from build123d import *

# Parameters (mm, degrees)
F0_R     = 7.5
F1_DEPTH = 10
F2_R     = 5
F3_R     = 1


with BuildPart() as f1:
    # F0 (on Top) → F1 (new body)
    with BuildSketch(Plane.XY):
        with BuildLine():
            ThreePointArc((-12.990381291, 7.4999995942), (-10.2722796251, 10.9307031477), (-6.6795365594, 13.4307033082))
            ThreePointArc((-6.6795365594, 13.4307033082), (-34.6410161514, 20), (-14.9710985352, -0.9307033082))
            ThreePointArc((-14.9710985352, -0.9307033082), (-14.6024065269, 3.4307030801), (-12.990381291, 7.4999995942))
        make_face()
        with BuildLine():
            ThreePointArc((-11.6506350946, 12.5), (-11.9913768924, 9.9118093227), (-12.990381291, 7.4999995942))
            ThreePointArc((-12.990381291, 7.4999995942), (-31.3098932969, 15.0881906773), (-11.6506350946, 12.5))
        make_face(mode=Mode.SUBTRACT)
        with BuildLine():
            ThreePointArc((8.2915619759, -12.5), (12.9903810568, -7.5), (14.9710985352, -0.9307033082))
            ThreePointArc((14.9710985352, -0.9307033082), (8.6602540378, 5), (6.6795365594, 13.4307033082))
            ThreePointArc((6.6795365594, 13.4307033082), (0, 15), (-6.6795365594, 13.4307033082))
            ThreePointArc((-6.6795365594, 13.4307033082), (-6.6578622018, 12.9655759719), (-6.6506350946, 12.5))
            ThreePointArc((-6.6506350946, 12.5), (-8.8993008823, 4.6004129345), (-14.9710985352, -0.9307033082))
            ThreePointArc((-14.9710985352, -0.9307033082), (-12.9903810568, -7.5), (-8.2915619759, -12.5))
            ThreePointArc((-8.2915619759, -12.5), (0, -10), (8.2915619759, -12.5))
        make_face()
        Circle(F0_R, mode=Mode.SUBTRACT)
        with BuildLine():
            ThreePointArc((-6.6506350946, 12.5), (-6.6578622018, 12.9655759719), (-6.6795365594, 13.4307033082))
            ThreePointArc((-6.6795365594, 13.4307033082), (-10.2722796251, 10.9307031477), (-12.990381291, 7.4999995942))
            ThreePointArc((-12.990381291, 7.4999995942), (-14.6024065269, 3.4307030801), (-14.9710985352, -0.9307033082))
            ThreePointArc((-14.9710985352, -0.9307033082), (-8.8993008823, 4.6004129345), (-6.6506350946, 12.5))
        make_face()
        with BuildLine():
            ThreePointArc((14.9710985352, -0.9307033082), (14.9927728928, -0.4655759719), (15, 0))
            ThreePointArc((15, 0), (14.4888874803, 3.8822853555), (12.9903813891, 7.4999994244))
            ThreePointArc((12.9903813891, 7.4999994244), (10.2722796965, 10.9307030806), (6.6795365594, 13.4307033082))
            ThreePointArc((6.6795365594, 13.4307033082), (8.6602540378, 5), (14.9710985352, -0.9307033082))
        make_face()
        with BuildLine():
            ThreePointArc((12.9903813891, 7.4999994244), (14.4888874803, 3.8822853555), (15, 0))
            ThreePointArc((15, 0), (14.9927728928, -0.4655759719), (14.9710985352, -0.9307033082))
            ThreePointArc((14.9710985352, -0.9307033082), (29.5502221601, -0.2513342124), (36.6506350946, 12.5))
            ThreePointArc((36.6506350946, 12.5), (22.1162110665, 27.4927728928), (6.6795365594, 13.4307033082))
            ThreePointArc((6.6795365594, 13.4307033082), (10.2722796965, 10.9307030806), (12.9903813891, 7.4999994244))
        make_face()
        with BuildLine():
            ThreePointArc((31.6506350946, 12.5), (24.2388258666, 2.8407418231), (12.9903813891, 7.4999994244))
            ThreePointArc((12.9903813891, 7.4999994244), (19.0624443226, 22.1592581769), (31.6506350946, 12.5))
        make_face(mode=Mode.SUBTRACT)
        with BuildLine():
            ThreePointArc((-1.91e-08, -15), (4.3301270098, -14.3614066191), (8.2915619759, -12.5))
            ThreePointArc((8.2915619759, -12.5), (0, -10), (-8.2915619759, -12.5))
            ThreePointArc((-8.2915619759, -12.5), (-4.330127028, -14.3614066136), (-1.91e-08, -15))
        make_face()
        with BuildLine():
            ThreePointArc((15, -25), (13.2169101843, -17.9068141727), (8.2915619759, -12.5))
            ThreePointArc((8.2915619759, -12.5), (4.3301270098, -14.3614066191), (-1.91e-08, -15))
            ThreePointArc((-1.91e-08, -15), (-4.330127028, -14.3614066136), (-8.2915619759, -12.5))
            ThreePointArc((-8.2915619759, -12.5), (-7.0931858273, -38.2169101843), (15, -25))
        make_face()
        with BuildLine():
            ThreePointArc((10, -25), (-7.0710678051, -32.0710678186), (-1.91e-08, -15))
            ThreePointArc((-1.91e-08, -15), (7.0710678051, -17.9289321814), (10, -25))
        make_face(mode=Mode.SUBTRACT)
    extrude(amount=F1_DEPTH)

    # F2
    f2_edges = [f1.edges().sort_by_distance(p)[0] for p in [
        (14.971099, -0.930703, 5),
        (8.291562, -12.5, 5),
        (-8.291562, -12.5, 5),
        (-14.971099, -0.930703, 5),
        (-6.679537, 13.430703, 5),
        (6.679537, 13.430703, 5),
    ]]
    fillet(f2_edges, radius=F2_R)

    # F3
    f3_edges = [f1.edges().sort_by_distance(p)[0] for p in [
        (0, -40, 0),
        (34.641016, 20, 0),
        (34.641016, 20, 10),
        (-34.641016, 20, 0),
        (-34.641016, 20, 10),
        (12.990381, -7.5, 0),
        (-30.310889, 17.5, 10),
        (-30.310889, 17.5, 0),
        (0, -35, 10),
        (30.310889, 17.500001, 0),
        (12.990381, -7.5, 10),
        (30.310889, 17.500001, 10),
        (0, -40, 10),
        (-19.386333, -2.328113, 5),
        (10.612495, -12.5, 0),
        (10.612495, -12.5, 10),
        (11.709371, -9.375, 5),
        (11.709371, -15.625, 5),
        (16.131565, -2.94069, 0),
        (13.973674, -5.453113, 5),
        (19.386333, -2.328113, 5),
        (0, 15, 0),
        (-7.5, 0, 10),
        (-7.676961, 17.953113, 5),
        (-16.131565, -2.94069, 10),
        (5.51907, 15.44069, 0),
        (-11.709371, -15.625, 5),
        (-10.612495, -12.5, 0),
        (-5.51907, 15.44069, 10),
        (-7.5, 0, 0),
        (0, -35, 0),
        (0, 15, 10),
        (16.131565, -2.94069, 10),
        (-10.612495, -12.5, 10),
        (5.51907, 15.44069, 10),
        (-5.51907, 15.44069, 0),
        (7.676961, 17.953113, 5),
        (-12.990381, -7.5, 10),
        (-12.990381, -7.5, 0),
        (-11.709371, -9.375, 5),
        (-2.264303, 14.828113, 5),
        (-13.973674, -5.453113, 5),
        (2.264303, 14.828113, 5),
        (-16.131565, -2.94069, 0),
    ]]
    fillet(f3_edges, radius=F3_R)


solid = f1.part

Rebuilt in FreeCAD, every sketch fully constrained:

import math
import FreeCAD as App
import Part
import Sketcher
from FreeCAD import Vector


def edges_at(feature, points):
    """Names of the edges that pass closest to the given points."""
    edges = feature.Shape.Edges
    near = lambda p: min(range(len(edges)), key=lambda i: edges[i].distToShape(Part.Vertex(*p))[0])
    return sorted({f"Edge{near(p) + 1}" for p in points})

doc = App.newDocument("Part")
body = doc.addObject("PartDesign::Body", "Body")

# Sketch on XY plane
sketch1 = body.newObject("Sketcher::SketchObject", "Sketch")
sketch1.AttachmentSupport = (doc.getObject("XY_Plane"), [""])
sketch1.MapMode = "FlatFace"
sketch1.addGeometry([
    Part.ArcOfCircle(Part.Circle(Vector(-21.650635, 12.5, 0), Vector(0, 0, 1), 15), math.radians(3.55731), math.radians(296.44269)),  # 0
    Part.ArcOfCircle(Part.Circle(Vector(0, 0, 0), Vector(0, 0, 1), 15), math.radians(-176.44269), math.radians(-123.55731)),  # 1
    Part.ArcOfCircle(Part.Circle(Vector(0, -25, 0), Vector(0, 0, 1), 15), math.radians(123.55731), math.radians(360)),  # 2
    Part.ArcOfCircle(Part.Circle(Vector(0, -25, 0), Vector(0, 0, 1), 15), math.radians(0), math.radians(56.44269)),  # 3
    Part.ArcOfCircle(Part.Circle(Vector(0, 0, 0), Vector(0, 0, 1), 15), math.radians(-56.44269), math.radians(-3.55731)),  # 4
    Part.ArcOfCircle(Part.Circle(Vector(21.650635, 12.5, 0), Vector(0, 0, 1), 15), math.radians(-116.44269), math.radians(0)),  # 5
    Part.ArcOfCircle(Part.Circle(Vector(21.650635, 12.5, 0), Vector(0, 0, 1), 15), math.radians(0), math.radians(176.44269)),  # 6
    Part.ArcOfCircle(Part.Circle(Vector(0, 0, 0), Vector(0, 0, 1), 15), math.radians(63.55731), math.radians(116.44269)),  # 7
    Part.ArcOfCircle(Part.Circle(Vector(0, -25, 0), Vector(0, 0, 1), 10), math.radians(0), math.radians(90)),  # 8
    Part.ArcOfCircle(Part.Circle(Vector(0, -25, 0), Vector(0, 0, 1), 10), math.radians(90), math.radians(360)),  # 9
    Part.ArcOfCircle(Part.Circle(Vector(-21.650635, 12.5, 0), Vector(0, 0, 1), 10), math.radians(-30.000003), math.radians(0)),  # 10
    Part.ArcOfCircle(Part.Circle(Vector(-21.650635, 12.5, 0), Vector(0, 0, 1), 10), math.radians(0), math.radians(329.999997)),  # 11
    Part.Circle(Vector(0, 0, 0), Vector(0, 0, 1), 7.5),  # 12
    Part.ArcOfCircle(Part.Circle(Vector(21.650635, 12.5, 0), Vector(0, 0, 1), 10), math.radians(0), math.radians(210.000004)),  # 13
    Part.ArcOfCircle(Part.Circle(Vector(21.650635, 12.5, 0), Vector(0, 0, 1), 10), math.radians(-149.999996), math.radians(0)),  # 14
], False)
sketch1.addConstraint([
    Sketcher.Constraint("Coincident", 0, 2, 1, 1),
    Sketcher.Constraint("Coincident", 1, 2, 2, 1),
    Sketcher.Constraint("Tangent", 2, 2, 3, 1),
    Sketcher.Constraint("Coincident", 3, 2, 4, 1),
    Sketcher.Constraint("Coincident", 4, 2, 5, 1),
    Sketcher.Constraint("Tangent", 5, 2, 6, 1),
    Sketcher.Constraint("Coincident", 6, 2, 7, 1),
    Sketcher.Constraint("Coincident", 7, 2, 0, 1),
    Sketcher.Constraint("Tangent", 8, 1, 9, 2),
    Sketcher.Constraint("Coincident", 9, 1, 8, 2),
    Sketcher.Constraint("Tangent", 10, 1, 11, 2),
    Sketcher.Constraint("Coincident", 11, 1, 10, 2),
    Sketcher.Constraint("Tangent", 13, 1, 14, 2),
    Sketcher.Constraint("Coincident", 14, 1, 13, 2),
    Sketcher.Constraint("Coincident", 1, 3, -1, 1),
    Sketcher.Constraint("Coincident", 4, 3, -1, 1),
    Sketcher.Constraint("Coincident", 7, 3, -1, 1),
    Sketcher.Constraint("Coincident", 12, 3, -1, 1),
    Sketcher.Constraint("Coincident", 8, 3, 2, 3),
    Sketcher.Constraint("Coincident", 10, 3, 0, 3),
    Sketcher.Constraint("Coincident", 13, 3, 5, 3),
    Sketcher.Constraint("Equal", 0, 1),
    Sketcher.Constraint("Equal", 1, 2),
    Sketcher.Constraint("Equal", 2, 3),
    Sketcher.Constraint("Equal", 3, 4),
    Sketcher.Constraint("Equal", 4, 5),
    Sketcher.Constraint("Equal", 5, 6),
    Sketcher.Constraint("Equal", 6, 7),
    Sketcher.Constraint("Equal", 9, 10),
    Sketcher.Constraint("Equal", 11, 13),
    Sketcher.Constraint("Symmetric", 0, 3, 5, 3, -2),
    Sketcher.Constraint("PointOnObject", 2, 3, -2),
    Sketcher.Constraint("PointOnObject", 9, 1, -2),
    Sketcher.Constraint("Horizontal", 9, 3, 2, 2),
    Sketcher.Constraint("Horizontal", 14, 3, 5, 2),
    Sketcher.Constraint("Horizontal", 2, 2, 8, 1),
    Sketcher.Constraint("Horizontal", 5, 2, 11, 1),
    Sketcher.Constraint("Horizontal", 11, 1, 13, 1),
    Sketcher.Constraint("Horizontal", 10, 1, 14, 1),
    Sketcher.Constraint("Diameter", 12, 15.0),
    Sketcher.Constraint("Radius", 0, 15.0),
    Sketcher.Constraint("Radius", 8, 10.0),
    Sketcher.Constraint("DistanceY", 2, 3, -1, 1, 25.0),
    Sketcher.Constraint("DistanceY", 10, 1, 0, 3, 5.0),
    Sketcher.Constraint("DistanceY", -1, 1, 0, 3, 12.5),
    Sketcher.Constraint("DistanceX", -1, 1, 4, 2, 14.971099),
])
pad1 = body.newObject("PartDesign::Pad", "Pad")
pad1.Profile = sketch1
pad1.Length = 10
doc.recompute()

fillet = body.newObject("PartDesign::Fillet", "Fillet")
fillet.Base = (pad1, edges_at(pad1, [
    (14.971, -0.931, 5),
    (8.292, -12.5, 5),
    (-8.292, -12.5, 5),
    (-14.971, -0.931, 5),
    (-6.68, 13.431, 5),
    (6.68, 13.431, 5),
]))
fillet.Radius = 5
doc.recompute()

fillet2 = body.newObject("PartDesign::Fillet", "Fillet001")
fillet2.Base = (fillet, ["Edge1"])
fillet2.UseAllEdges = True
fillet2.Radius = 1

doc.recompute()
